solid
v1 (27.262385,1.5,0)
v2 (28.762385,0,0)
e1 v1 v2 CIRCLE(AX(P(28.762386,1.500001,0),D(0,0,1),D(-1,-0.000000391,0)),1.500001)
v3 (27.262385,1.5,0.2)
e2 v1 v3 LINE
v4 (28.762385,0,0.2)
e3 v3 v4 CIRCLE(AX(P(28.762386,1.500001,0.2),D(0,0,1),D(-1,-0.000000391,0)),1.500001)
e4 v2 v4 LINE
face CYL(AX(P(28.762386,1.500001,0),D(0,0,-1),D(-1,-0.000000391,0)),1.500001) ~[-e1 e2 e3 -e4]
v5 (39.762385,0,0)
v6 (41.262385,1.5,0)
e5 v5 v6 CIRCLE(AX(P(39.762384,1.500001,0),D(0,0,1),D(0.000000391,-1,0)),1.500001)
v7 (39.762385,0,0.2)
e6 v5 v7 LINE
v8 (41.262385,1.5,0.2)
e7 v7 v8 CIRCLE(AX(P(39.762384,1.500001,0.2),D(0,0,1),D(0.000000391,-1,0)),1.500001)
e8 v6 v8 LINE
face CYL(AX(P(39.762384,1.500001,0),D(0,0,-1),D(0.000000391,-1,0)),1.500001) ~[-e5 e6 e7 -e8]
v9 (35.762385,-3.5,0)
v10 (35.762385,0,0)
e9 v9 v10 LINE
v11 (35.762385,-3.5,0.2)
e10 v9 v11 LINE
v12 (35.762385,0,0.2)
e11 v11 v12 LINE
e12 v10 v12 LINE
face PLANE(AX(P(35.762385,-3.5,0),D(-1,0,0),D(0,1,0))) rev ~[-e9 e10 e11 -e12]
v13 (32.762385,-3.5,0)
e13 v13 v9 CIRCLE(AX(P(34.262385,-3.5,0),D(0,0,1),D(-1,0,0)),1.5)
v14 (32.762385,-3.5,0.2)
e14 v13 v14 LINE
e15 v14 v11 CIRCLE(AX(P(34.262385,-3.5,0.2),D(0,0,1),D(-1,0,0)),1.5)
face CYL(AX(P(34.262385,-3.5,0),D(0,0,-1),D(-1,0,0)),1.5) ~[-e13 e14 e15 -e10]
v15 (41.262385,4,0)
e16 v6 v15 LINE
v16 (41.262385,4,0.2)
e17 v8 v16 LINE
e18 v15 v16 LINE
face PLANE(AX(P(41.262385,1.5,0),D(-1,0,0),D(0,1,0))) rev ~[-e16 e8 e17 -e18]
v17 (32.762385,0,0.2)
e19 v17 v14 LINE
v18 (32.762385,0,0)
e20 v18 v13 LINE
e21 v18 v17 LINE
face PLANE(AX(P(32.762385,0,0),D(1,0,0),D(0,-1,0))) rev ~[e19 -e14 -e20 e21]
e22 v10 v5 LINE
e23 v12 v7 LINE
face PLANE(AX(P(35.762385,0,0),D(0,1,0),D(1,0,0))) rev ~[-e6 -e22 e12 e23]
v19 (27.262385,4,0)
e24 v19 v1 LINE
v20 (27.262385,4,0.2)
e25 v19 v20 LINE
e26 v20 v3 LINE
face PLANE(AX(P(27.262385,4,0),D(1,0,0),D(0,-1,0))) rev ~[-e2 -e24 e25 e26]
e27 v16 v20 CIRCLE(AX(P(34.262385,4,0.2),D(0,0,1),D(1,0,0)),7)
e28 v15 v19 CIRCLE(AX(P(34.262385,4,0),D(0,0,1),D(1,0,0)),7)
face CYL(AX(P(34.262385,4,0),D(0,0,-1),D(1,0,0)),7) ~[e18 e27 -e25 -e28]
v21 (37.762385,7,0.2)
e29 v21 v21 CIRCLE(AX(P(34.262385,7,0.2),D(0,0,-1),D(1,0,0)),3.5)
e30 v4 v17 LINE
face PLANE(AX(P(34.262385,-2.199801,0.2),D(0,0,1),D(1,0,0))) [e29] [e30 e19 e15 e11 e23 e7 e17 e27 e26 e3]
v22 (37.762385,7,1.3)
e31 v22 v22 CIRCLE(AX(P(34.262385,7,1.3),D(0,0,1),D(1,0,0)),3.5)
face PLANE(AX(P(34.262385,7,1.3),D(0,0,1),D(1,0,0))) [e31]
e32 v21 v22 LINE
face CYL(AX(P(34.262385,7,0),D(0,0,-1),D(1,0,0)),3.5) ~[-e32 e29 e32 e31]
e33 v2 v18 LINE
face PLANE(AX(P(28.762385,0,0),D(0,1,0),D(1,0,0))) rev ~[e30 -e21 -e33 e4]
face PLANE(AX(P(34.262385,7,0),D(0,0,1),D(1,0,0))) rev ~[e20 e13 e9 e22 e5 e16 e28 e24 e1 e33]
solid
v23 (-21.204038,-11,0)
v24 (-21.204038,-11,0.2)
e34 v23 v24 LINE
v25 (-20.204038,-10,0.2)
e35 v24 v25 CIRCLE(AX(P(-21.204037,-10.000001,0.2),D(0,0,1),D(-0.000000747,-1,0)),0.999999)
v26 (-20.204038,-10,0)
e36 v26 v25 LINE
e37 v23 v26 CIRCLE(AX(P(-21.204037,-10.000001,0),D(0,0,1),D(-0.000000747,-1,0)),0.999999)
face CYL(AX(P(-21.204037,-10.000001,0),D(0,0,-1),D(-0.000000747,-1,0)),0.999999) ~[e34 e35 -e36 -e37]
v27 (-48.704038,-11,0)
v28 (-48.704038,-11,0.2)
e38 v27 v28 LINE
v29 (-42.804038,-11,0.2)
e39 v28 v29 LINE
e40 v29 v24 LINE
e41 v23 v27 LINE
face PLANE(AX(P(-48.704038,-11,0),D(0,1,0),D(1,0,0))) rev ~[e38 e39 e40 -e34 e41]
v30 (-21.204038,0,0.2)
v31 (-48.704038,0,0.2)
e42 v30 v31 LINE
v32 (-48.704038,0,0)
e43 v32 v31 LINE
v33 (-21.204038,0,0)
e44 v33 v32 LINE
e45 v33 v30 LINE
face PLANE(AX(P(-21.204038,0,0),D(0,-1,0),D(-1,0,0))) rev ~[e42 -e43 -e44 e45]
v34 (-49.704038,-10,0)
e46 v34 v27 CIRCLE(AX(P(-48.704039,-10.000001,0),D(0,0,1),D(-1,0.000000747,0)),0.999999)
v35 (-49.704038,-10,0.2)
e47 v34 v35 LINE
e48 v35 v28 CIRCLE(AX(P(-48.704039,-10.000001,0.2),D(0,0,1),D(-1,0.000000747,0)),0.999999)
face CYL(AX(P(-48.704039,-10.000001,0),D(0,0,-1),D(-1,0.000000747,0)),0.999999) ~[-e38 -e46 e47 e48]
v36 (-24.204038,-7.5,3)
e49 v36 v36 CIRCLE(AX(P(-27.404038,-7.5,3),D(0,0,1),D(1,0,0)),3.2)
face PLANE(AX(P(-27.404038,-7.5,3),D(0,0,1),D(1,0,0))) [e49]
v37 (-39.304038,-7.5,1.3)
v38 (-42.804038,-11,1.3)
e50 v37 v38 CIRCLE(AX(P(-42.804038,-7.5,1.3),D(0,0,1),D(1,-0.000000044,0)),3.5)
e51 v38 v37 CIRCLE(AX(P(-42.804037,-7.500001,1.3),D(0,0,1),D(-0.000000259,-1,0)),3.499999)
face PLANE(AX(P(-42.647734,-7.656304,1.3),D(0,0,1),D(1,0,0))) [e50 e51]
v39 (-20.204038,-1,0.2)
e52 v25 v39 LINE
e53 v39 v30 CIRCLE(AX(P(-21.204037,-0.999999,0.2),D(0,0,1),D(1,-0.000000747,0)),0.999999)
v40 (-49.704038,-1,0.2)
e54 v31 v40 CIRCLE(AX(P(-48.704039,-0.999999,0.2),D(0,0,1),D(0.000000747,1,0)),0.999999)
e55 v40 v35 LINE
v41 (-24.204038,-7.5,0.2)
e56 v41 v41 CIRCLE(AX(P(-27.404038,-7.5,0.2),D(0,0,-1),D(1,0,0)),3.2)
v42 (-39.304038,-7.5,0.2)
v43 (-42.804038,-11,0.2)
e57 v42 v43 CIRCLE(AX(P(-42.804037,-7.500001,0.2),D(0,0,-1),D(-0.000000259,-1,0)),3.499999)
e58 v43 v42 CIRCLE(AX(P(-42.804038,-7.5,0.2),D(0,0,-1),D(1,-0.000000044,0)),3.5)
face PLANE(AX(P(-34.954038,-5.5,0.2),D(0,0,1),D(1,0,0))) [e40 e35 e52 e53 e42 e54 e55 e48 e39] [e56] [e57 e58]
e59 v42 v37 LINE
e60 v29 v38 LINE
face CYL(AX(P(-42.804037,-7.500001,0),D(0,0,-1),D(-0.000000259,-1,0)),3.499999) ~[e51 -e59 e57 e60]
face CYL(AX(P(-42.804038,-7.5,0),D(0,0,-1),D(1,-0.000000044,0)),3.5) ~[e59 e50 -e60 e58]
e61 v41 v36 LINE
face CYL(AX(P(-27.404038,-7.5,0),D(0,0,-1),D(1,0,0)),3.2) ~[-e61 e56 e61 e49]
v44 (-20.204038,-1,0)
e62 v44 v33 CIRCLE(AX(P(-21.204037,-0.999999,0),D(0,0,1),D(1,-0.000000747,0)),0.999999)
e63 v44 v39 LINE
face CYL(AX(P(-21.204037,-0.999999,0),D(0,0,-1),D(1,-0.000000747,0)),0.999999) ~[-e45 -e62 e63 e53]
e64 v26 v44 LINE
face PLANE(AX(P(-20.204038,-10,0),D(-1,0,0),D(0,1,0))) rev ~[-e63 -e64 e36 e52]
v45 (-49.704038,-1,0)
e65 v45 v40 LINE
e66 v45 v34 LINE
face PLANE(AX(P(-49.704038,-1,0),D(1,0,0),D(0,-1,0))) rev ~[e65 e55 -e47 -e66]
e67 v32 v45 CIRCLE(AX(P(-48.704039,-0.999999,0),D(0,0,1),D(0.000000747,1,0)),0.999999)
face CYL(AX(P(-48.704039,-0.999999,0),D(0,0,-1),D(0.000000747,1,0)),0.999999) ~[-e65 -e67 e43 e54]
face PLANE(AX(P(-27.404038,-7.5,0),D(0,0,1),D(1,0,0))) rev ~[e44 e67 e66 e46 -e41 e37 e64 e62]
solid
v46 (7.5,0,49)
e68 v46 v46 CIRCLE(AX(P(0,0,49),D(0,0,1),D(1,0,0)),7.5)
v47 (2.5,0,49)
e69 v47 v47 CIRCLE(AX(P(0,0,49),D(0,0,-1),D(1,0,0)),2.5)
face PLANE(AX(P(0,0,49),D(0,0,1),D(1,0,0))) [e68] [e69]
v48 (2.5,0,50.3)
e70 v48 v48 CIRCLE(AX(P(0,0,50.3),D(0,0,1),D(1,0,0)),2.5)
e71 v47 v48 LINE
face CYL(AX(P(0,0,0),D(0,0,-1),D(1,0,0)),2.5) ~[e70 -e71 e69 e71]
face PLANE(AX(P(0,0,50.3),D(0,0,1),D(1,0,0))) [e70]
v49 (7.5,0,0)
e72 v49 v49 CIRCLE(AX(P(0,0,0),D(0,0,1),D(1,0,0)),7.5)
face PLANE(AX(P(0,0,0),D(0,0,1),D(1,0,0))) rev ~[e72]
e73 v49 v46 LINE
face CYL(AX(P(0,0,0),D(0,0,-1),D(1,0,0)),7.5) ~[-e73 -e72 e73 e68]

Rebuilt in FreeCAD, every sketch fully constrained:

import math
import FreeCAD as App
import Part
import Sketcher

V = App.Vector

doc = App.newDocument("Part")
body = doc.addObject("PartDesign::Body", "Body")

# Sketch on XY plane
sketch1 = doc.addObject("Sketcher::SketchObject", "Sketch")
body.addObject(sketch1)
sketch1.AttachmentSupport = (doc.XY_Plane, [""])
sketch1.MapMode = "FlatFace"
sketch1.addGeometry(Part.ArcOfCircle(Part.Circle(V(-21.204037, -10.000001, 0), V(0, 0, 1), 0.999999), math.radians(-90.000043), math.radians(0.000043)), False)
sketch1.addGeometry(Part.LineSegment(V(-20.204038, -10, 0), V(-20.204038, -1, 0)), False)
sketch1.addGeometry(Part.ArcOfCircle(Part.Circle(V(-21.204037, -0.999999, 0), V(0, 0, 1), 0.999999), math.radians(-0.000043), math.radians(90.000043)), False)
sketch1.addGeometry(Part.LineSegment(V(-21.204038, 0, 0), V(-48.704038, 0, 0)), False)
sketch1.addGeometry(Part.ArcOfCircle(Part.Circle(V(-48.704039, -0.999999, 0), V(0, 0, 1), 0.999999), math.radians(89.999957), math.radians(180.000043)), False)
sketch1.addGeometry(Part.LineSegment(V(-49.704038, -1, 0), V(-49.704038, -10, 0)), False)
sketch1.addGeometry(Part.ArcOfCircle(Part.Circle(V(-48.704039, -10.000001, 0), V(0, 0, 1), 0.999999), math.radians(179.999957), math.radians(270.000043)), False)
sketch1.addGeometry(Part.LineSegment(V(-48.704038, -11, 0), V(-21.204038, -11, 0)), False)
sketch1.addConstraint(Sketcher.Constraint("Tangent", 0, 2, 1, 1))
sketch1.addConstraint(Sketcher.Constraint("Tangent", 1, 2, 2, 1))
sketch1.addConstraint(Sketcher.Constraint("Tangent", 2, 2, 3, 1))
sketch1.addConstraint(Sketcher.Constraint("Tangent", 3, 2, 4, 1))
sketch1.addConstraint(Sketcher.Constraint("Tangent", 4, 2, 5, 1))
sketch1.addConstraint(Sketcher.Constraint("Tangent", 5, 2, 6, 1))
sketch1.addConstraint(Sketcher.Constraint("Tangent", 6, 2, 7, 1))
sketch1.addConstraint(Sketcher.Constraint("Tangent", 7, 2, 0, 1))
sketch1.addConstraint(Sketcher.Constraint("Vertical", 1))
sketch1.addConstraint(Sketcher.Constraint("Horizontal", 3))
sketch1.addConstraint(Sketcher.Constraint("Vertical", 5))
sketch1.addConstraint(Sketcher.Constraint("Horizontal", 7))
sketch1.addConstraint(Sketcher.Constraint("Equal", 0, 2))
sketch1.addConstraint(Sketcher.Constraint("Equal", 2, 4))
sketch1.addConstraint(Sketcher.Constraint("Equal", 4, 6))
sketch1.addConstraint(Sketcher.Constraint("PointOnObject", 2, 2, -1))
sketch1.addConstraint(Sketcher.Constraint("Radius", 0, 0.999999))
sketch1.addConstraint(Sketcher.Constraint("DistanceY", 1, 1, 1, 2, 9.0))
sketch1.addConstraint(Sketcher.Constraint("DistanceX", 3, 2, 3, 1, 27.5))
sketch1.addConstraint(Sketcher.Constraint("DistanceX", 4, 3, -1, 1, 48.704039))
pad1 = doc.addObject("PartDesign::Pad", "Pad")
body.addObject(pad1)
pad1.Profile = sketch1
pad1.Length = 0.2

# Sketch on XY plane
sketch2 = doc.addObject("Sketcher::SketchObject", "Sketch001")
body.addObject(sketch2)
sketch2.AttachmentSupport = (doc.XY_Plane, [""])
sketch2.MapMode = "FlatFace"
sketch2.addGeometry(Part.ArcOfCircle(Part.Circle(V(-42.804038, -7.5, 0), V(0, 0, 1), 3.5), math.radians(-0.000003), math.radians(270.000003)), False)
sketch2.addGeometry(Part.ArcOfCircle(Part.Circle(V(-42.804037, -7.500001, 0), V(0, 0, 1), 3.499999), math.radians(-90.000015), math.radians(0.000015)), False)
sketch2.addConstraint(Sketcher.Constraint("Tangent", 0, 1, 1, 2))
sketch2.addConstraint(Sketcher.Constraint("Coincident", 1, 1, 0, 2))
sketch2.addConstraint(Sketcher.Constraint("Horizontal", 1, 3, 0, 1))
sketch2.addConstraint(Sketcher.Constraint("Vertical", 0, 3, 1, 1))
sketch2.addConstraint(Sketcher.Constraint("Radius", 0, 3.5))
sketch2.addConstraint(Sketcher.Constraint("DistanceY", 1, 1, -1, 1, 11.0))
sketch2.addConstraint(Sketcher.Constraint("DistanceX", 0, 3, -1, 1, 42.804038))
pad2 = doc.addObject("PartDesign::Pad", "Pad001")
body.addObject(pad2)
pad2.Profile = sketch2
pad2.Length = 1.3

# Sketch on XY plane
sketch3 = doc.addObject("Sketcher::SketchObject", "Sketch002")
body.addObject(sketch3)
sketch3.AttachmentSupport = (doc.XY_Plane, [""])
sketch3.MapMode = "FlatFace"
sketch3.addGeometry(Part.Circle(V(-27.404038, -7.5, 0), V(0, 0, 1), 3.2), False)
sketch3.addConstraint(Sketcher.Constraint("Diameter", 0, 6.4))
sketch3.addConstraint(Sketcher.Constraint("DistanceY", 0, 3, -1, 1, 7.5))
sketch3.addConstraint(Sketcher.Constraint("DistanceX", 0, 3, -1, 1, 27.404038))
pad3 = doc.addObject("PartDesign::Pad", "Pad002")
body.addObject(pad3)
pad3.Profile = sketch3
pad3.Length = 3
body2 = doc.addObject("PartDesign::Body", "Body001")

# Sketch on XY plane
sketch4 = doc.addObject("Sketcher::SketchObject", "Sketch003")
body2.addObject(sketch4)
sketch4.AttachmentSupport = (doc.getObject("XY_Plane001"), [""])
sketch4.MapMode = "FlatFace"
sketch4.addGeometry(Part.Circle(V(0, 0, 0), V(0, 0, 1), 7.5), False)
sketch4.addConstraint(Sketcher.Constraint("Coincident", 0, 3, -1, 1))
sketch4.addConstraint(Sketcher.Constraint("Diameter", 0, 15.0))
pad4 = doc.addObject("PartDesign::Pad", "Pad003")
body2.addObject(pad4)
pad4.Profile = sketch4
pad4.Length = 49

# Sketch on XY plane
sketch5 = doc.addObject("Sketcher::SketchObject", "Sketch004")
body2.addObject(sketch5)
sketch5.AttachmentSupport = (doc.getObject("XY_Plane001"), [""])
sketch5.MapMode = "FlatFace"
sketch5.addGeometry(Part.Circle(V(0, 0, 0), V(0, 0, 1), 2.5), False)
sketch5.addConstraint(Sketcher.Constraint("Coincident", 0, 3, -1, 1))
sketch5.addConstraint(Sketcher.Constraint("Diameter", 0, 5.0))
pad5 = doc.addObject("PartDesign::Pad", "Pad004")
body2.addObject(pad5)
pad5.Profile = sketch5
pad5.Length = 50.3
body3 = doc.addObject("PartDesign::Body", "Body002")

# Sketch on XY plane
sketch6 = doc.addObject("Sketcher::SketchObject", "Sketch005")
body3.addObject(sketch6)
sketch6.AttachmentSupport = (doc.getObject("XY_Plane002"), [""])
sketch6.MapMode = "FlatFace"
sketch6.addGeometry(Part.LineSegment(V(32.762385, 0, 0), V(32.762385, -3.5, 0)), False)
sketch6.addGeometry(Part.ArcOfCircle(Part.Circle(V(34.262385, -3.5, 0), V(0, 0, 1), 1.5), math.radians(180), math.radians(360)), False)
sketch6.addGeometry(Part.LineSegment(V(35.762385, -3.5, 0), V(35.762385, 0, 0)), False)
sketch6.addGeometry(Part.LineSegment(V(35.762385, 0, 0), V(39.762385, 0, 0)), False)
sketch6.addGeometry(Part.ArcOfCircle(Part.Circle(V(39.762384, 1.500001, 0), V(0, 0, 1), 1.500001), math.radians(-89.999978), math.radians(-0.000022)), False)
sketch6.addGeometry(Part.LineSegment(V(41.262385, 1.5, 0), V(41.262385, 4, 0)), False)
sketch6.addGeometry(Part.ArcOfCircle(Part.Circle(V(34.262385, 4, 0), V(0, 0, 1), 7), math.radians(0), math.radians(180)), False)
sketch6.addGeometry(Part.LineSegment(V(27.262385, 4, 0), V(27.262385, 1.5, 0)), False)
sketch6.addGeometry(Part.ArcOfCircle(Part.Circle(V(28.762386, 1.500001, 0), V(0, 0, 1), 1.500001), math.radians(-179.999978), math.radians(-90.000022)), False)
sketch6.addGeometry(Part.LineSegment(V(28.762385, 0, 0), V(32.762385, 0, 0)), False)
sketch6.addConstraint(Sketcher.Constraint("Tangent", 0, 2, 1, 1))
sketch6.addConstraint(Sketcher.Constraint("Tangent", 1, 2, 2, 1))
sketch6.addConstraint(Sketcher.Constraint("Coincident", 2, 2, 3, 1))
sketch6.addConstraint(Sketcher.Constraint("Tangent", 3, 2, 4, 1))
sketch6.addConstraint(Sketcher.Constraint("Tangent", 4, 2, 5, 1))
sketch6.addConstraint(Sketcher.Constraint("Tangent", 5, 2, 6, 1))
sketch6.addConstraint(Sketcher.Constraint("Tangent", 6, 2, 7, 1))
sketch6.addConstraint(Sketcher.Constraint("Tangent", 7, 2, 8, 1))
sketch6.addConstraint(Sketcher.Constraint("Tangent", 8, 2, 9, 1))
sketch6.addConstraint(Sketcher.Constraint("Coincident", 9, 2, 0, 1))
sketch6.addConstraint(Sketcher.Constraint("Vertical", 0))
sketch6.addConstraint(Sketcher.Constraint("Vertical", 2))
sketch6.addConstraint(Sketcher.Constraint("Horizontal", 3))
sketch6.addConstraint(Sketcher.Constraint("Vertical", 5))
sketch6.addConstraint(Sketcher.Constraint("Vertical", 7))
sketch6.addConstraint(Sketcher.Constraint("Horizontal", 9))
sketch6.addConstraint(Sketcher.Constraint("Equal", 1, 4))
sketch6.addConstraint(Sketcher.Constraint("Equal", 4, 8))
sketch6.addConstraint(Sketcher.Constraint("PointOnObject", 2, 2, -1))
sketch6.addConstraint(Sketcher.Constraint("PointOnObject", 8, 2, -1))
sketch6.addConstraint(Sketcher.Constraint("Vertical", 1, 3, 6, 3))
sketch6.addConstraint(Sketcher.Constraint("Radius", 6, 7.0))
sketch6.addConstraint(Sketcher.Constraint("Radius", 1, 1.5))
sketch6.addConstraint(Sketcher.Constraint("DistanceY", 0, 2, 0, 1, 3.5))
sketch6.addConstraint(Sketcher.Constraint("DistanceY", 5, 1, 5, 2, 2.5))
sketch6.addConstraint(Sketcher.Constraint("DistanceX", -1, 1, 1, 3, 34.262385))
pad6 = doc.addObject("PartDesign::Pad", "Pad005")
body3.addObject(pad6)
pad6.Profile = sketch6
pad6.Length = 0.2

# Sketch on XY plane
sketch7 = doc.addObject("Sketcher::SketchObject", "Sketch006")
body3.addObject(sketch7)
sketch7.AttachmentSupport = (doc.getObject("XY_Plane002"), [""])
sketch7.MapMode = "FlatFace"
sketch7.addGeometry(Part.Circle(V(34.262385, 7, 0), V(0, 0, 1), 3.5), False)
sketch7.addConstraint(Sketcher.Constraint("Diameter", 0, 7.0))
sketch7.addConstraint(Sketcher.Constraint("DistanceY", -1, 1, 0, 3, 7.0))
sketch7.addConstraint(Sketcher.Constraint("DistanceX", -1, 1, 0, 3, 34.262385))
pad7 = doc.addObject("PartDesign::Pad", "Pad006")
body3.addObject(pad7)
pad7.Profile = sketch7
pad7.Length = 1.3

doc.recompute()
